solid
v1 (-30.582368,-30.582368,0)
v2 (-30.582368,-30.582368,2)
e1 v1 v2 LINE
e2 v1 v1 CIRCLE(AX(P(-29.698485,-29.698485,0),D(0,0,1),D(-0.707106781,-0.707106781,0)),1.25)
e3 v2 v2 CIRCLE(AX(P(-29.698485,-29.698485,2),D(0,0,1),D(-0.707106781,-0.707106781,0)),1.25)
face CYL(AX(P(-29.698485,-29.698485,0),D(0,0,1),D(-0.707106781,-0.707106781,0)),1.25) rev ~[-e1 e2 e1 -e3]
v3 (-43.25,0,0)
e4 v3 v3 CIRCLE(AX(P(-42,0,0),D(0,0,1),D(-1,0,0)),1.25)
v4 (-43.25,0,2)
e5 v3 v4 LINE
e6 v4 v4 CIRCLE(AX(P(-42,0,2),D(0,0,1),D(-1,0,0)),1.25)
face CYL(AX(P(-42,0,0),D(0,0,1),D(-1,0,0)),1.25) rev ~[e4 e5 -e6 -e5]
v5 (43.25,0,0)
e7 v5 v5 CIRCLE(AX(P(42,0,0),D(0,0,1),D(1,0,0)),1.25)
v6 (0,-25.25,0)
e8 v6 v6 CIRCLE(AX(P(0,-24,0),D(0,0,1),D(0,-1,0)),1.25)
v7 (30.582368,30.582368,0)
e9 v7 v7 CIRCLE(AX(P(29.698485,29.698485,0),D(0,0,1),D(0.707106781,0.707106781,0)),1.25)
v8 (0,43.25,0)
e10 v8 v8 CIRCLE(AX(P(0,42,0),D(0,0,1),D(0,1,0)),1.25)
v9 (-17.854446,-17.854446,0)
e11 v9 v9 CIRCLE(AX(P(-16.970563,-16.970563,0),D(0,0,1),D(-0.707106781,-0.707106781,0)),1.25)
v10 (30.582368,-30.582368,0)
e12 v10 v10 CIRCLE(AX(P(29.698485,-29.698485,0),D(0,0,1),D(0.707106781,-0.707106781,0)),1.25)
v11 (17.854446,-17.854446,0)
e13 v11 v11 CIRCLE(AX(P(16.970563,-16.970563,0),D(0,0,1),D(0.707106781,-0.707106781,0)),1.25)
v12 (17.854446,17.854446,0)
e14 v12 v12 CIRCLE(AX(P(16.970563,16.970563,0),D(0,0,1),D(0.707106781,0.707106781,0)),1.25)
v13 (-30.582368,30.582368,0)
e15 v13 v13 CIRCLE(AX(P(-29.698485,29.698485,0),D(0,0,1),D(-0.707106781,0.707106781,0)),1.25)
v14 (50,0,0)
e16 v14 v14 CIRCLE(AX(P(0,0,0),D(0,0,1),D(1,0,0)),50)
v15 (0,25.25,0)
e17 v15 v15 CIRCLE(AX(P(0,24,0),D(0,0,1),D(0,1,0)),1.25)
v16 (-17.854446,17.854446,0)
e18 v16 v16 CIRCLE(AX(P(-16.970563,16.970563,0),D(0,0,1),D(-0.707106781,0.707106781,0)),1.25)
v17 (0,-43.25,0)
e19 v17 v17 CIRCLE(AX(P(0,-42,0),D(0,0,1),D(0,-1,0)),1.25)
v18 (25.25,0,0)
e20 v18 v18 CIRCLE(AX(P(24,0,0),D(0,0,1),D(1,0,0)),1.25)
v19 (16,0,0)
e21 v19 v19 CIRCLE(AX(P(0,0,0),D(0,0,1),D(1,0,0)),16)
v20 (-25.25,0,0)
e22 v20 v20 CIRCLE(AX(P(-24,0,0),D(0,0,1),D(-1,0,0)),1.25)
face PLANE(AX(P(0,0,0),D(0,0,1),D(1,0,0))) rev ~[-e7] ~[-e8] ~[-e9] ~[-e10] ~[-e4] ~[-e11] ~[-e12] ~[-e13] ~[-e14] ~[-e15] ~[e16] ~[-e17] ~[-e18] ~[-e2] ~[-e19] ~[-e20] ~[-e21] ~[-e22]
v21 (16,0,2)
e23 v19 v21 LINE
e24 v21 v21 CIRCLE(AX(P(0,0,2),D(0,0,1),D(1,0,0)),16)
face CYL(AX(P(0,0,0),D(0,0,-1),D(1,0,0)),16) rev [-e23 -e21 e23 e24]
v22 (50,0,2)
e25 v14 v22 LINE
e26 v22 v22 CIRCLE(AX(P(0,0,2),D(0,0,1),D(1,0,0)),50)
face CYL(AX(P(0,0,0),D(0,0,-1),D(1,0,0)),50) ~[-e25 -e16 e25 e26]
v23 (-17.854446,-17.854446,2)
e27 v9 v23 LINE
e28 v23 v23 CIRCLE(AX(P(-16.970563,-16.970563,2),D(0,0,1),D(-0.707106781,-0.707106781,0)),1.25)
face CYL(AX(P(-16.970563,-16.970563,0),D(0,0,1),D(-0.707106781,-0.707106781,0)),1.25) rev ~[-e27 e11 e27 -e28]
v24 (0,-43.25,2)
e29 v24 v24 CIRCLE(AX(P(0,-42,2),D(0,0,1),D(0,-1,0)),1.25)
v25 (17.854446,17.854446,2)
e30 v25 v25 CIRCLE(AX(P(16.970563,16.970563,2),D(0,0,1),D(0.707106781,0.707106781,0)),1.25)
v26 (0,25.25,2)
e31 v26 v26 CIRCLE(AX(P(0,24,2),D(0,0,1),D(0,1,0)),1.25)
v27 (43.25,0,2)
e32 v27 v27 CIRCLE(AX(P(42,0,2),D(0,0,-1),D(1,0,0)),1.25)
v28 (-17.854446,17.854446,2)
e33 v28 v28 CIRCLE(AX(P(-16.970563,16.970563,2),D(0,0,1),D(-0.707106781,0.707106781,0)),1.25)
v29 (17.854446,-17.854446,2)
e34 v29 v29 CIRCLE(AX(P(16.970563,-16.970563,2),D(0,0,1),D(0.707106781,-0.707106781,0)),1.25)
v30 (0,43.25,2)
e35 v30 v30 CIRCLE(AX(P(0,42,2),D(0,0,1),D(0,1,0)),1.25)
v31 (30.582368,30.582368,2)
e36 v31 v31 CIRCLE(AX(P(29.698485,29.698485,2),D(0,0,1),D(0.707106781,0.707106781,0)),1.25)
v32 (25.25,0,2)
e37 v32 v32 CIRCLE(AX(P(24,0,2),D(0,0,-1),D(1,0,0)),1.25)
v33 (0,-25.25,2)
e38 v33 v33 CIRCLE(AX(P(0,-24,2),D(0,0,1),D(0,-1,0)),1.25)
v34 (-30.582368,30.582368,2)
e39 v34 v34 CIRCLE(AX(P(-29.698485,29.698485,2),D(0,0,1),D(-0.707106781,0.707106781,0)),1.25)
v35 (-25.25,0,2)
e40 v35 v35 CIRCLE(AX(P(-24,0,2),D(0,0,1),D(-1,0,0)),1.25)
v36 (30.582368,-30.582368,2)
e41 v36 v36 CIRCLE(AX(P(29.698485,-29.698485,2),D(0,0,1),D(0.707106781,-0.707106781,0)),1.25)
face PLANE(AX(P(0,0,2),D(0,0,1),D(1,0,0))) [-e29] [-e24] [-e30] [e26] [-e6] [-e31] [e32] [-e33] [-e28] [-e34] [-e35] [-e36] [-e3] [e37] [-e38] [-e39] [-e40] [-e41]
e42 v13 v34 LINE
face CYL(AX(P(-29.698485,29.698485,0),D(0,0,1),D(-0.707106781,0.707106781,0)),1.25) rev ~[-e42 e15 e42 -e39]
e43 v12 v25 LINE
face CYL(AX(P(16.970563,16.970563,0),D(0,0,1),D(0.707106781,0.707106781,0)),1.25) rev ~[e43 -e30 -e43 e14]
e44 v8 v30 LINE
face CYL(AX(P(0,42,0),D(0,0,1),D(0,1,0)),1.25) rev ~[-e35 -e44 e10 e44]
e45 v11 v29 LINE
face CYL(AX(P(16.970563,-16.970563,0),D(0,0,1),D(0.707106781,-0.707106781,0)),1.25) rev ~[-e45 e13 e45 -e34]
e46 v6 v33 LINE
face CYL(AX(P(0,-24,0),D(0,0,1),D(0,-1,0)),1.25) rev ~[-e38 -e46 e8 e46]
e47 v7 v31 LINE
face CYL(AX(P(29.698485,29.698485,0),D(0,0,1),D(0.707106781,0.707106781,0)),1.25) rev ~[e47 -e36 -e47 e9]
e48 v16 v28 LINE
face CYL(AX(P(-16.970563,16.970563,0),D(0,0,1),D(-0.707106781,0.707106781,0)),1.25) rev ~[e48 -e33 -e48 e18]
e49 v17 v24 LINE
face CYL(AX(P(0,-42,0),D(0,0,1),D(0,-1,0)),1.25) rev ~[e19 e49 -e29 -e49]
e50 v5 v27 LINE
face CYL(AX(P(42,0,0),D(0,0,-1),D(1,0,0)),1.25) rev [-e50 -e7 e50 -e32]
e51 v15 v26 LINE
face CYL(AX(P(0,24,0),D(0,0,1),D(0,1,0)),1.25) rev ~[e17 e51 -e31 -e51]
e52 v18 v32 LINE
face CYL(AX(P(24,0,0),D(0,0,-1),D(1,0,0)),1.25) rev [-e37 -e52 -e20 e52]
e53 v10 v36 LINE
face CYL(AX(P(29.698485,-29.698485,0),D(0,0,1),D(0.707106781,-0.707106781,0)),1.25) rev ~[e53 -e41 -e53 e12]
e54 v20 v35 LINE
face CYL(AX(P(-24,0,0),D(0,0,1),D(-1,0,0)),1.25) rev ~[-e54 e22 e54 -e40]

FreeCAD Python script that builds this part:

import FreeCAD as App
import Part
import Sketcher

V = App.Vector

doc = App.newDocument("Part")
body = doc.addObject("PartDesign::Body", "Body")

sketch1 = doc.addObject("Sketcher::SketchObject", "Sketch")
body.addObject(sketch1)
sketch1.AttachmentSupport = (doc.XY_Plane, [""])
sketch1.MapMode = "FlatFace"
sketch1.addGeometry([
    Part.Circle(V(0, 0, 0), V(0, 0, 1), 50),
    Part.Circle(V(0, 0, 0), V(0, 0, 1), 16),
], False)
sketch1.addConstraint([
    Sketcher.Constraint("Coincident", 0, 3, -1, 1),
    Sketcher.Constraint("Coincident", 1, 3, -1, 1),
    Sketcher.Constraint("Diameter", 0, 100.0),
    Sketcher.Constraint("Diameter", 1, 32.0),
])
pad1 = doc.addObject("PartDesign::Pad", "Pad")
body.addObject(pad1)
pad1.Profile = sketch1
pad1.Length = 2

sketch2 = doc.addObject("Sketcher::SketchObject", "Sketch001")
body.addObject(sketch2)
sketch2.AttachmentSupport = (doc.XY_Plane, [""])
sketch2.MapMode = "FlatFace"
sketch2.addGeometry([
    Part.Circle(V(24, 0, 0), V(0, 0, 1), 1.25),
    Part.Circle(V(42, 0, 0), V(0, 0, 1), 1.25),
], False)
sketch2.addConstraint([
    Sketcher.Constraint("Equal", 0, 1),
    Sketcher.Constraint("PointOnObject", 0, 3, -1),
    Sketcher.Constraint("PointOnObject", 1, 3, -1),
    Sketcher.Constraint("Diameter", 0, 2.5),
    Sketcher.Constraint("DistanceX", -1, 1, 0, 3, 24.0),
    Sketcher.Constraint("DistanceX", -1, 1, 1, 3, 42.0),
])
pocket1 = doc.addObject("PartDesign::Pocket", "Pocket")
body.addObject(pocket1)
pocket1.Profile = sketch2
pocket1.Type = "ThroughAll"
pocket1.Midplane = True
doc.recompute()

polarpattern = doc.addObject("PartDesign::PolarPattern", "PolarPattern")
body.addObject(polarpattern)
polarpattern.Originals = [pocket1]
polarpattern.Axis = (doc.Z_Axis, [""])
polarpattern.Angle = 360
polarpattern.Occurrences = 8
body.Tip = polarpattern

doc.recompute()
